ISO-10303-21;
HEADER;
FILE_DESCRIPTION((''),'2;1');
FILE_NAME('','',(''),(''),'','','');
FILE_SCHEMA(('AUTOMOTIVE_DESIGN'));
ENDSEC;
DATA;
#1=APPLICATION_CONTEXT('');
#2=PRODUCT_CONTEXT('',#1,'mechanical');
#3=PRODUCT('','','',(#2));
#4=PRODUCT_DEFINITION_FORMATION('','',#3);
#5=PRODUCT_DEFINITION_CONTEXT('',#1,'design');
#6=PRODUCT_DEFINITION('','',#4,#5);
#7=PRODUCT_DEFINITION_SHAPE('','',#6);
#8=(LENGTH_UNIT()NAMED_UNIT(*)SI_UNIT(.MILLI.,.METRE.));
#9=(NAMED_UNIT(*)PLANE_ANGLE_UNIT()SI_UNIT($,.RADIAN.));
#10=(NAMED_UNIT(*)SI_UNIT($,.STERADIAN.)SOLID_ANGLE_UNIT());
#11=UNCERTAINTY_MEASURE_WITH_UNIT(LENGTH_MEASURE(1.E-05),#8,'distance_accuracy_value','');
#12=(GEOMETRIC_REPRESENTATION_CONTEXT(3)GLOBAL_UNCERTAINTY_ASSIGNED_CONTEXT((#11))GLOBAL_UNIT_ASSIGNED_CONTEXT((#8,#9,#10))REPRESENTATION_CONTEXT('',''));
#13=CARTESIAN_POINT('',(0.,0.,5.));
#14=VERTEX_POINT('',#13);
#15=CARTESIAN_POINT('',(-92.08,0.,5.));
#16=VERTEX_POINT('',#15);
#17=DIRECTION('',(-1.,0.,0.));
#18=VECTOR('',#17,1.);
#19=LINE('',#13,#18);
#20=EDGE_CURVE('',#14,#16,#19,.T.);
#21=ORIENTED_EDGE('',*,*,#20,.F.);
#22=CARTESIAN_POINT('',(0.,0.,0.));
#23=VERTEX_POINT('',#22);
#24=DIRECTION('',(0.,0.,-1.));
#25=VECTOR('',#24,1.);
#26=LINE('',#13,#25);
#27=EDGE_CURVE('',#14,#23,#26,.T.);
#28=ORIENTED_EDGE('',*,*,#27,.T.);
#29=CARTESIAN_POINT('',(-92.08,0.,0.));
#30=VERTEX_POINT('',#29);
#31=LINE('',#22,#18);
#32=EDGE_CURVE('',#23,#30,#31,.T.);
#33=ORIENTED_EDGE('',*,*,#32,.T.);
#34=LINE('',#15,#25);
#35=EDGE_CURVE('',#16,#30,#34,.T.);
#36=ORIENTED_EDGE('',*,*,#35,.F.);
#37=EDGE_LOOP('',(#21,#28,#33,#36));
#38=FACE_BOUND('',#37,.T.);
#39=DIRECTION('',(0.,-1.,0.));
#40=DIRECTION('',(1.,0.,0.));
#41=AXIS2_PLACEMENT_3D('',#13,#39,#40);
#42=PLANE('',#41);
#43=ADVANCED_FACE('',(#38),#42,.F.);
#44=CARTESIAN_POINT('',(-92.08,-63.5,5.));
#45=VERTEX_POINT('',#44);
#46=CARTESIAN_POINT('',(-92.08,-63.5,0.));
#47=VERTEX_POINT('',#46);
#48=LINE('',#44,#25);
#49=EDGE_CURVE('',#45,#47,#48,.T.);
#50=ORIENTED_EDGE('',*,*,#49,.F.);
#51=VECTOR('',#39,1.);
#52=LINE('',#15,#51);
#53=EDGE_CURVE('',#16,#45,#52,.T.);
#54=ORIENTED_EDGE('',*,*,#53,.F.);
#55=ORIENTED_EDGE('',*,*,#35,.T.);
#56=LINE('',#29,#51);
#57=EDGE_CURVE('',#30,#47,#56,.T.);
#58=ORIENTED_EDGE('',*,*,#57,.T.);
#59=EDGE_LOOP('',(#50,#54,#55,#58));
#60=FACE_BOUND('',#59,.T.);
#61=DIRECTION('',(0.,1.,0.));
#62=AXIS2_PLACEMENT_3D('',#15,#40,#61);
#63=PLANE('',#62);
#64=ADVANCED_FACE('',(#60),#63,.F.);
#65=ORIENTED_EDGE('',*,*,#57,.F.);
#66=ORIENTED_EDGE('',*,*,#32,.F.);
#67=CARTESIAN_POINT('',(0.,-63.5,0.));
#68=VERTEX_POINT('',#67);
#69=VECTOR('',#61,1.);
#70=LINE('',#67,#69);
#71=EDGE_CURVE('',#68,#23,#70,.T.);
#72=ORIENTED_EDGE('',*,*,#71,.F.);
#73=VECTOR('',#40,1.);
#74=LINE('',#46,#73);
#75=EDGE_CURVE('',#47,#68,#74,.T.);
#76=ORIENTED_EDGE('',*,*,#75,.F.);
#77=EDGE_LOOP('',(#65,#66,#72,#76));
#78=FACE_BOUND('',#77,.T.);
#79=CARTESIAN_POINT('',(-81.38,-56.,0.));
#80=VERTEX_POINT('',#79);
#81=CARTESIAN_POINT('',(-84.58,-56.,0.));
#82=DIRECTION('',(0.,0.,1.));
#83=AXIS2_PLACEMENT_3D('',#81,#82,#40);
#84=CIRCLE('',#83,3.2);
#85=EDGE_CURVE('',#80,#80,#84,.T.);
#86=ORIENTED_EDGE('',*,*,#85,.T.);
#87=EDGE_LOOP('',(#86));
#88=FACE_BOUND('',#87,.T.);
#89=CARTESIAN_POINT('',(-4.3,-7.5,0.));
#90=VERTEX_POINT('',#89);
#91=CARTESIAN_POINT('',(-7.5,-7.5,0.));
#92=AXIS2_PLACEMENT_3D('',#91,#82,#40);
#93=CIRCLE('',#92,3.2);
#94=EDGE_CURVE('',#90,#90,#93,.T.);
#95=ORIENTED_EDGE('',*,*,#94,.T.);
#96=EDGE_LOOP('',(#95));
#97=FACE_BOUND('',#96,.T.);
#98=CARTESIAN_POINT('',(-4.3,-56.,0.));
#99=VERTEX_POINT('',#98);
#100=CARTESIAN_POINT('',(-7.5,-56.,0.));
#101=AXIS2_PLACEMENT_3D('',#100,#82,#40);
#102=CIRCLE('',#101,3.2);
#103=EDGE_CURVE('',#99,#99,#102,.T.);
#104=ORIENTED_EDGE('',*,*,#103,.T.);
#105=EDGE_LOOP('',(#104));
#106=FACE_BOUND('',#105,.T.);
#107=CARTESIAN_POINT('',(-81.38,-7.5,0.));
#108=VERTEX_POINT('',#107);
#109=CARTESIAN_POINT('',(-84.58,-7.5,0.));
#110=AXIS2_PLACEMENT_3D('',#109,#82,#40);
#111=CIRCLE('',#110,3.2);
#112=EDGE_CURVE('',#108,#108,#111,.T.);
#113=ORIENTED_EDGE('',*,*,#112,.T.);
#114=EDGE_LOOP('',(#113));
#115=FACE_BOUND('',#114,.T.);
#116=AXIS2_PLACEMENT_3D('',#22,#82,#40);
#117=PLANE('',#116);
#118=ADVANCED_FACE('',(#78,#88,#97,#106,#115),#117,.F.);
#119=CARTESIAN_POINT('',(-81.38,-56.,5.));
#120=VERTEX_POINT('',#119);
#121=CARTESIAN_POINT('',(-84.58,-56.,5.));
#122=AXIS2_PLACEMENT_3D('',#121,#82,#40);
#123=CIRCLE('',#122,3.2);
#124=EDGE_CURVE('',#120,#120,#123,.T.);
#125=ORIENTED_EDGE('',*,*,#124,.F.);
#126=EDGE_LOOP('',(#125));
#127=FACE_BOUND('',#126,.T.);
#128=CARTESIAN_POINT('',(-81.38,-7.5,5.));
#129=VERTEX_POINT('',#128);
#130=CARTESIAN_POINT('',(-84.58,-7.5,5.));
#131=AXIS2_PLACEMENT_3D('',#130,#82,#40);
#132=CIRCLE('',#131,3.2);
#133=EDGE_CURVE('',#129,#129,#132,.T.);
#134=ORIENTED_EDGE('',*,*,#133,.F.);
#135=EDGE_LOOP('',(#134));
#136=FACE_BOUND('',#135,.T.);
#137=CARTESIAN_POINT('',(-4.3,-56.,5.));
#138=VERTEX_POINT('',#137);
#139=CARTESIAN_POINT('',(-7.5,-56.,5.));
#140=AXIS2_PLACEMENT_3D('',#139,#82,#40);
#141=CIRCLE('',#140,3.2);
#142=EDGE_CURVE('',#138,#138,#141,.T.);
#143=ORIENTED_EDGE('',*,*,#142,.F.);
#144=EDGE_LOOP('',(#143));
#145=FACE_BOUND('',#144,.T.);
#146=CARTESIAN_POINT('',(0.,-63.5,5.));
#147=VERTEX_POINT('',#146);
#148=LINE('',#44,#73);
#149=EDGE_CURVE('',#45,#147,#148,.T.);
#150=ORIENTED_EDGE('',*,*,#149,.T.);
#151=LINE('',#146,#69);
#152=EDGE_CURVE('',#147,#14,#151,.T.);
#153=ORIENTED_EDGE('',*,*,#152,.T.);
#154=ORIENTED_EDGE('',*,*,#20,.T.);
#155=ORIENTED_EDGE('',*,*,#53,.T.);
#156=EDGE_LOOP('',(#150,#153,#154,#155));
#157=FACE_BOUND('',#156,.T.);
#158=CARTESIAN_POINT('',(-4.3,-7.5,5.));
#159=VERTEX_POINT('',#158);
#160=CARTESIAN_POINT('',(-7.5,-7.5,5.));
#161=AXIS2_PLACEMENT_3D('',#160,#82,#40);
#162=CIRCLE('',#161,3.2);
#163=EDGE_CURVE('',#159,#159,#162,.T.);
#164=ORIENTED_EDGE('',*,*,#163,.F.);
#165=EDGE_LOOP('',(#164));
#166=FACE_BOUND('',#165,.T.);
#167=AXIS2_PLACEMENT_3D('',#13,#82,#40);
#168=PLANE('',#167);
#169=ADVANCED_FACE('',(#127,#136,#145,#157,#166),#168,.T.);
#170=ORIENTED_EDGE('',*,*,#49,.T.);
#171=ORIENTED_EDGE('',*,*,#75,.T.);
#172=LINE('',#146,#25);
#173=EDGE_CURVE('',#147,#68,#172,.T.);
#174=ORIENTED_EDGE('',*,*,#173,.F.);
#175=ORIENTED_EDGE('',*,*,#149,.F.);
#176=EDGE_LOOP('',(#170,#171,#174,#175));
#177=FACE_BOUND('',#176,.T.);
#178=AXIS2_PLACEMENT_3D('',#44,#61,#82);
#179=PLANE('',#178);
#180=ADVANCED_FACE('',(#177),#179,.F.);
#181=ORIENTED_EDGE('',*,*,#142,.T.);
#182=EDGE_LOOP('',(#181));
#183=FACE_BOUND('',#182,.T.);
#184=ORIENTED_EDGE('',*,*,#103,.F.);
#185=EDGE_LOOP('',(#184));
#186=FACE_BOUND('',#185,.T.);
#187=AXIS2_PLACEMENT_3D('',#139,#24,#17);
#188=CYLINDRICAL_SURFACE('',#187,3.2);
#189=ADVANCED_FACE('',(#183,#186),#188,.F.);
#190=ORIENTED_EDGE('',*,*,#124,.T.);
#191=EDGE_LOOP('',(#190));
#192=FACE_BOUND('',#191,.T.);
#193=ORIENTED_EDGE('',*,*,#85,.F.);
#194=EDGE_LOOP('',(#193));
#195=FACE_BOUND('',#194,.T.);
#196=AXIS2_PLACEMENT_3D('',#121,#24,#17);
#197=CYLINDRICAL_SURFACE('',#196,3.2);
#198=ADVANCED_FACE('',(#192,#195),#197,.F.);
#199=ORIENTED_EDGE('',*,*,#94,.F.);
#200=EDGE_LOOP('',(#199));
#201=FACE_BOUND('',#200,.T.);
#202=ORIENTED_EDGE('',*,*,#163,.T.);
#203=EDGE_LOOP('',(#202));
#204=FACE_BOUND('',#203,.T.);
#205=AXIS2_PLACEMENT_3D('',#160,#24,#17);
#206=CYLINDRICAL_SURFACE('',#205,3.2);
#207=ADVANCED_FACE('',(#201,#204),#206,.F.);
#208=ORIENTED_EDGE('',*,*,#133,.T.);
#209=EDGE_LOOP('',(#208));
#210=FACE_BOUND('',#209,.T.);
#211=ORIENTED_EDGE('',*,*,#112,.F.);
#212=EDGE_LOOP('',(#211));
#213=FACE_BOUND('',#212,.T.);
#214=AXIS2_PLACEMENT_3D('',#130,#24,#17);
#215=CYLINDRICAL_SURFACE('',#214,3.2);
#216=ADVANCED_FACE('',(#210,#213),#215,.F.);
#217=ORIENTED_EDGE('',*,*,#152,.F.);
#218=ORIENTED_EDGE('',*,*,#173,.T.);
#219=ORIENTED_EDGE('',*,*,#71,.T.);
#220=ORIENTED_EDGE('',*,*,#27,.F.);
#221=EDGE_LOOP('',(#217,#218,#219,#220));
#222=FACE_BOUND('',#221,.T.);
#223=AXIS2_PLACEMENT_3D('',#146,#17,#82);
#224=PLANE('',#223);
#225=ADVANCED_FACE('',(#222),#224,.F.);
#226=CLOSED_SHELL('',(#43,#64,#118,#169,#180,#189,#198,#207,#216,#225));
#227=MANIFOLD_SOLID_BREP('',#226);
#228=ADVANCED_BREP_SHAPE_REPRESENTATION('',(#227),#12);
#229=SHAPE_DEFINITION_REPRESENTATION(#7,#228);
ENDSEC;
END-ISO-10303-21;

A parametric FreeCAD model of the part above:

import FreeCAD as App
import Part
import Sketcher

V = App.Vector
Q = App.Units.Quantity


def add_polygon(sketch, points):
    """Adds a closed chain of lines whose ends are joined by coincident constraints."""
    first, n = sketch.GeometryCount, len(points)
    for a, b in zip(points, points[1:] + points[:1]):
        sketch.addGeometry(Part.LineSegment(App.Vector(*a, 0), App.Vector(*b, 0)), False)
    for i in range(n):
        sketch.addConstraint(Sketcher.Constraint("Coincident", first + i, 2, first + (i + 1) % n, 1))

doc = App.newDocument("Part")
params = doc.addObject("Spreadsheet::Sheet", "Params")
for row, (alias, value) in enumerate([
    ("sketch1_diameter", "6.4 mm"),
    ("sketch1_height", "63.5 mm"),
    ("sketch1_width", "92.08 mm"),
    ("pad1_length", "5 mm"),
], start=1):
    params.set(f"A{row}", alias)
    params.set(f"B{row}", "=" + value)
    params.setAlias(f"B{row}", alias)

body = doc.addObject("PartDesign::Body", "Body")

# Sketch on XY plane
sketch1 = body.newObject("Sketcher::SketchObject", "Sketch")
sketch1.AttachmentSupport = (doc.getObject("XY_Plane"), [""])
sketch1.MapMode = "FlatFace"
add_polygon(sketch1, [(-92.1, 0), (-92.1, -63.5), (0, -63.5), (0, 0)])  # lines 0-3
sketch1.addGeometry(Part.Circle(V(-84.6, -56, 0), V(0, 0, 1), 3.2), False)  # 4
sketch1.addGeometry(Part.Circle(V(-7.5, -56, 0), V(0, 0, 1), 3.2), False)  # 5
sketch1.addGeometry(Part.Circle(V(-84.6, -7.5, 0), V(0, 0, 1), 3.2), False)  # 6
sketch1.addGeometry(Part.Circle(V(-7.5, -7.5, 0), V(0, 0, 1), 3.2), False)  # 7
sketch1.addConstraint([
    Sketcher.Constraint("Vertical", 0),
    Sketcher.Constraint("Horizontal", 1),
    Sketcher.Constraint("Vertical", 2),
    Sketcher.Constraint("Horizontal", 3),
    Sketcher.Constraint("Coincident", 2, 2, -1, 1),
    Sketcher.Constraint("Equal", 4, 5),
    Sketcher.Constraint("Equal", 5, 6),
    Sketcher.Constraint("Equal", 6, 7),
    Sketcher.Constraint("Horizontal", 4, 3, 5, 3),
    Sketcher.Constraint("Horizontal", 6, 3, 7, 3),
    Sketcher.Constraint("Vertical", 4, 3, 6, 3),
    Sketcher.Constraint("Vertical", 5, 3, 7, 3),
    Sketcher.Constraint("Diameter", 4, Q("6.4 mm")),
    Sketcher.Constraint("DistanceY", 0, 2, 0, 1, Q("63.5 mm")),
    Sketcher.Constraint("DistanceY", 4, 3, -1, 1, Q("56 mm")),
    Sketcher.Constraint("DistanceY", 0, 2, 6, 3, Q("56 mm")),
    Sketcher.Constraint("DistanceX", 1, 1, 1, 2, Q("92.08 mm")),
    Sketcher.Constraint("DistanceX", 5, 3, -1, 1, Q("7.5 mm")),
    Sketcher.Constraint("DistanceX", 0, 2, 4, 3, Q("7.5 mm")),
])
sketch1.setExpression("Constraints[16]", "Params.sketch1_diameter")
sketch1.setExpression("Constraints[17]", "Params.sketch1_height")
sketch1.setExpression("Constraints[20]", "Params.sketch1_width")
pad1 = body.newObject("PartDesign::Pad", "Pad")
pad1.Profile = sketch1
pad1.setExpression("Length", "Params.pad1_length")

doc.recompute()
